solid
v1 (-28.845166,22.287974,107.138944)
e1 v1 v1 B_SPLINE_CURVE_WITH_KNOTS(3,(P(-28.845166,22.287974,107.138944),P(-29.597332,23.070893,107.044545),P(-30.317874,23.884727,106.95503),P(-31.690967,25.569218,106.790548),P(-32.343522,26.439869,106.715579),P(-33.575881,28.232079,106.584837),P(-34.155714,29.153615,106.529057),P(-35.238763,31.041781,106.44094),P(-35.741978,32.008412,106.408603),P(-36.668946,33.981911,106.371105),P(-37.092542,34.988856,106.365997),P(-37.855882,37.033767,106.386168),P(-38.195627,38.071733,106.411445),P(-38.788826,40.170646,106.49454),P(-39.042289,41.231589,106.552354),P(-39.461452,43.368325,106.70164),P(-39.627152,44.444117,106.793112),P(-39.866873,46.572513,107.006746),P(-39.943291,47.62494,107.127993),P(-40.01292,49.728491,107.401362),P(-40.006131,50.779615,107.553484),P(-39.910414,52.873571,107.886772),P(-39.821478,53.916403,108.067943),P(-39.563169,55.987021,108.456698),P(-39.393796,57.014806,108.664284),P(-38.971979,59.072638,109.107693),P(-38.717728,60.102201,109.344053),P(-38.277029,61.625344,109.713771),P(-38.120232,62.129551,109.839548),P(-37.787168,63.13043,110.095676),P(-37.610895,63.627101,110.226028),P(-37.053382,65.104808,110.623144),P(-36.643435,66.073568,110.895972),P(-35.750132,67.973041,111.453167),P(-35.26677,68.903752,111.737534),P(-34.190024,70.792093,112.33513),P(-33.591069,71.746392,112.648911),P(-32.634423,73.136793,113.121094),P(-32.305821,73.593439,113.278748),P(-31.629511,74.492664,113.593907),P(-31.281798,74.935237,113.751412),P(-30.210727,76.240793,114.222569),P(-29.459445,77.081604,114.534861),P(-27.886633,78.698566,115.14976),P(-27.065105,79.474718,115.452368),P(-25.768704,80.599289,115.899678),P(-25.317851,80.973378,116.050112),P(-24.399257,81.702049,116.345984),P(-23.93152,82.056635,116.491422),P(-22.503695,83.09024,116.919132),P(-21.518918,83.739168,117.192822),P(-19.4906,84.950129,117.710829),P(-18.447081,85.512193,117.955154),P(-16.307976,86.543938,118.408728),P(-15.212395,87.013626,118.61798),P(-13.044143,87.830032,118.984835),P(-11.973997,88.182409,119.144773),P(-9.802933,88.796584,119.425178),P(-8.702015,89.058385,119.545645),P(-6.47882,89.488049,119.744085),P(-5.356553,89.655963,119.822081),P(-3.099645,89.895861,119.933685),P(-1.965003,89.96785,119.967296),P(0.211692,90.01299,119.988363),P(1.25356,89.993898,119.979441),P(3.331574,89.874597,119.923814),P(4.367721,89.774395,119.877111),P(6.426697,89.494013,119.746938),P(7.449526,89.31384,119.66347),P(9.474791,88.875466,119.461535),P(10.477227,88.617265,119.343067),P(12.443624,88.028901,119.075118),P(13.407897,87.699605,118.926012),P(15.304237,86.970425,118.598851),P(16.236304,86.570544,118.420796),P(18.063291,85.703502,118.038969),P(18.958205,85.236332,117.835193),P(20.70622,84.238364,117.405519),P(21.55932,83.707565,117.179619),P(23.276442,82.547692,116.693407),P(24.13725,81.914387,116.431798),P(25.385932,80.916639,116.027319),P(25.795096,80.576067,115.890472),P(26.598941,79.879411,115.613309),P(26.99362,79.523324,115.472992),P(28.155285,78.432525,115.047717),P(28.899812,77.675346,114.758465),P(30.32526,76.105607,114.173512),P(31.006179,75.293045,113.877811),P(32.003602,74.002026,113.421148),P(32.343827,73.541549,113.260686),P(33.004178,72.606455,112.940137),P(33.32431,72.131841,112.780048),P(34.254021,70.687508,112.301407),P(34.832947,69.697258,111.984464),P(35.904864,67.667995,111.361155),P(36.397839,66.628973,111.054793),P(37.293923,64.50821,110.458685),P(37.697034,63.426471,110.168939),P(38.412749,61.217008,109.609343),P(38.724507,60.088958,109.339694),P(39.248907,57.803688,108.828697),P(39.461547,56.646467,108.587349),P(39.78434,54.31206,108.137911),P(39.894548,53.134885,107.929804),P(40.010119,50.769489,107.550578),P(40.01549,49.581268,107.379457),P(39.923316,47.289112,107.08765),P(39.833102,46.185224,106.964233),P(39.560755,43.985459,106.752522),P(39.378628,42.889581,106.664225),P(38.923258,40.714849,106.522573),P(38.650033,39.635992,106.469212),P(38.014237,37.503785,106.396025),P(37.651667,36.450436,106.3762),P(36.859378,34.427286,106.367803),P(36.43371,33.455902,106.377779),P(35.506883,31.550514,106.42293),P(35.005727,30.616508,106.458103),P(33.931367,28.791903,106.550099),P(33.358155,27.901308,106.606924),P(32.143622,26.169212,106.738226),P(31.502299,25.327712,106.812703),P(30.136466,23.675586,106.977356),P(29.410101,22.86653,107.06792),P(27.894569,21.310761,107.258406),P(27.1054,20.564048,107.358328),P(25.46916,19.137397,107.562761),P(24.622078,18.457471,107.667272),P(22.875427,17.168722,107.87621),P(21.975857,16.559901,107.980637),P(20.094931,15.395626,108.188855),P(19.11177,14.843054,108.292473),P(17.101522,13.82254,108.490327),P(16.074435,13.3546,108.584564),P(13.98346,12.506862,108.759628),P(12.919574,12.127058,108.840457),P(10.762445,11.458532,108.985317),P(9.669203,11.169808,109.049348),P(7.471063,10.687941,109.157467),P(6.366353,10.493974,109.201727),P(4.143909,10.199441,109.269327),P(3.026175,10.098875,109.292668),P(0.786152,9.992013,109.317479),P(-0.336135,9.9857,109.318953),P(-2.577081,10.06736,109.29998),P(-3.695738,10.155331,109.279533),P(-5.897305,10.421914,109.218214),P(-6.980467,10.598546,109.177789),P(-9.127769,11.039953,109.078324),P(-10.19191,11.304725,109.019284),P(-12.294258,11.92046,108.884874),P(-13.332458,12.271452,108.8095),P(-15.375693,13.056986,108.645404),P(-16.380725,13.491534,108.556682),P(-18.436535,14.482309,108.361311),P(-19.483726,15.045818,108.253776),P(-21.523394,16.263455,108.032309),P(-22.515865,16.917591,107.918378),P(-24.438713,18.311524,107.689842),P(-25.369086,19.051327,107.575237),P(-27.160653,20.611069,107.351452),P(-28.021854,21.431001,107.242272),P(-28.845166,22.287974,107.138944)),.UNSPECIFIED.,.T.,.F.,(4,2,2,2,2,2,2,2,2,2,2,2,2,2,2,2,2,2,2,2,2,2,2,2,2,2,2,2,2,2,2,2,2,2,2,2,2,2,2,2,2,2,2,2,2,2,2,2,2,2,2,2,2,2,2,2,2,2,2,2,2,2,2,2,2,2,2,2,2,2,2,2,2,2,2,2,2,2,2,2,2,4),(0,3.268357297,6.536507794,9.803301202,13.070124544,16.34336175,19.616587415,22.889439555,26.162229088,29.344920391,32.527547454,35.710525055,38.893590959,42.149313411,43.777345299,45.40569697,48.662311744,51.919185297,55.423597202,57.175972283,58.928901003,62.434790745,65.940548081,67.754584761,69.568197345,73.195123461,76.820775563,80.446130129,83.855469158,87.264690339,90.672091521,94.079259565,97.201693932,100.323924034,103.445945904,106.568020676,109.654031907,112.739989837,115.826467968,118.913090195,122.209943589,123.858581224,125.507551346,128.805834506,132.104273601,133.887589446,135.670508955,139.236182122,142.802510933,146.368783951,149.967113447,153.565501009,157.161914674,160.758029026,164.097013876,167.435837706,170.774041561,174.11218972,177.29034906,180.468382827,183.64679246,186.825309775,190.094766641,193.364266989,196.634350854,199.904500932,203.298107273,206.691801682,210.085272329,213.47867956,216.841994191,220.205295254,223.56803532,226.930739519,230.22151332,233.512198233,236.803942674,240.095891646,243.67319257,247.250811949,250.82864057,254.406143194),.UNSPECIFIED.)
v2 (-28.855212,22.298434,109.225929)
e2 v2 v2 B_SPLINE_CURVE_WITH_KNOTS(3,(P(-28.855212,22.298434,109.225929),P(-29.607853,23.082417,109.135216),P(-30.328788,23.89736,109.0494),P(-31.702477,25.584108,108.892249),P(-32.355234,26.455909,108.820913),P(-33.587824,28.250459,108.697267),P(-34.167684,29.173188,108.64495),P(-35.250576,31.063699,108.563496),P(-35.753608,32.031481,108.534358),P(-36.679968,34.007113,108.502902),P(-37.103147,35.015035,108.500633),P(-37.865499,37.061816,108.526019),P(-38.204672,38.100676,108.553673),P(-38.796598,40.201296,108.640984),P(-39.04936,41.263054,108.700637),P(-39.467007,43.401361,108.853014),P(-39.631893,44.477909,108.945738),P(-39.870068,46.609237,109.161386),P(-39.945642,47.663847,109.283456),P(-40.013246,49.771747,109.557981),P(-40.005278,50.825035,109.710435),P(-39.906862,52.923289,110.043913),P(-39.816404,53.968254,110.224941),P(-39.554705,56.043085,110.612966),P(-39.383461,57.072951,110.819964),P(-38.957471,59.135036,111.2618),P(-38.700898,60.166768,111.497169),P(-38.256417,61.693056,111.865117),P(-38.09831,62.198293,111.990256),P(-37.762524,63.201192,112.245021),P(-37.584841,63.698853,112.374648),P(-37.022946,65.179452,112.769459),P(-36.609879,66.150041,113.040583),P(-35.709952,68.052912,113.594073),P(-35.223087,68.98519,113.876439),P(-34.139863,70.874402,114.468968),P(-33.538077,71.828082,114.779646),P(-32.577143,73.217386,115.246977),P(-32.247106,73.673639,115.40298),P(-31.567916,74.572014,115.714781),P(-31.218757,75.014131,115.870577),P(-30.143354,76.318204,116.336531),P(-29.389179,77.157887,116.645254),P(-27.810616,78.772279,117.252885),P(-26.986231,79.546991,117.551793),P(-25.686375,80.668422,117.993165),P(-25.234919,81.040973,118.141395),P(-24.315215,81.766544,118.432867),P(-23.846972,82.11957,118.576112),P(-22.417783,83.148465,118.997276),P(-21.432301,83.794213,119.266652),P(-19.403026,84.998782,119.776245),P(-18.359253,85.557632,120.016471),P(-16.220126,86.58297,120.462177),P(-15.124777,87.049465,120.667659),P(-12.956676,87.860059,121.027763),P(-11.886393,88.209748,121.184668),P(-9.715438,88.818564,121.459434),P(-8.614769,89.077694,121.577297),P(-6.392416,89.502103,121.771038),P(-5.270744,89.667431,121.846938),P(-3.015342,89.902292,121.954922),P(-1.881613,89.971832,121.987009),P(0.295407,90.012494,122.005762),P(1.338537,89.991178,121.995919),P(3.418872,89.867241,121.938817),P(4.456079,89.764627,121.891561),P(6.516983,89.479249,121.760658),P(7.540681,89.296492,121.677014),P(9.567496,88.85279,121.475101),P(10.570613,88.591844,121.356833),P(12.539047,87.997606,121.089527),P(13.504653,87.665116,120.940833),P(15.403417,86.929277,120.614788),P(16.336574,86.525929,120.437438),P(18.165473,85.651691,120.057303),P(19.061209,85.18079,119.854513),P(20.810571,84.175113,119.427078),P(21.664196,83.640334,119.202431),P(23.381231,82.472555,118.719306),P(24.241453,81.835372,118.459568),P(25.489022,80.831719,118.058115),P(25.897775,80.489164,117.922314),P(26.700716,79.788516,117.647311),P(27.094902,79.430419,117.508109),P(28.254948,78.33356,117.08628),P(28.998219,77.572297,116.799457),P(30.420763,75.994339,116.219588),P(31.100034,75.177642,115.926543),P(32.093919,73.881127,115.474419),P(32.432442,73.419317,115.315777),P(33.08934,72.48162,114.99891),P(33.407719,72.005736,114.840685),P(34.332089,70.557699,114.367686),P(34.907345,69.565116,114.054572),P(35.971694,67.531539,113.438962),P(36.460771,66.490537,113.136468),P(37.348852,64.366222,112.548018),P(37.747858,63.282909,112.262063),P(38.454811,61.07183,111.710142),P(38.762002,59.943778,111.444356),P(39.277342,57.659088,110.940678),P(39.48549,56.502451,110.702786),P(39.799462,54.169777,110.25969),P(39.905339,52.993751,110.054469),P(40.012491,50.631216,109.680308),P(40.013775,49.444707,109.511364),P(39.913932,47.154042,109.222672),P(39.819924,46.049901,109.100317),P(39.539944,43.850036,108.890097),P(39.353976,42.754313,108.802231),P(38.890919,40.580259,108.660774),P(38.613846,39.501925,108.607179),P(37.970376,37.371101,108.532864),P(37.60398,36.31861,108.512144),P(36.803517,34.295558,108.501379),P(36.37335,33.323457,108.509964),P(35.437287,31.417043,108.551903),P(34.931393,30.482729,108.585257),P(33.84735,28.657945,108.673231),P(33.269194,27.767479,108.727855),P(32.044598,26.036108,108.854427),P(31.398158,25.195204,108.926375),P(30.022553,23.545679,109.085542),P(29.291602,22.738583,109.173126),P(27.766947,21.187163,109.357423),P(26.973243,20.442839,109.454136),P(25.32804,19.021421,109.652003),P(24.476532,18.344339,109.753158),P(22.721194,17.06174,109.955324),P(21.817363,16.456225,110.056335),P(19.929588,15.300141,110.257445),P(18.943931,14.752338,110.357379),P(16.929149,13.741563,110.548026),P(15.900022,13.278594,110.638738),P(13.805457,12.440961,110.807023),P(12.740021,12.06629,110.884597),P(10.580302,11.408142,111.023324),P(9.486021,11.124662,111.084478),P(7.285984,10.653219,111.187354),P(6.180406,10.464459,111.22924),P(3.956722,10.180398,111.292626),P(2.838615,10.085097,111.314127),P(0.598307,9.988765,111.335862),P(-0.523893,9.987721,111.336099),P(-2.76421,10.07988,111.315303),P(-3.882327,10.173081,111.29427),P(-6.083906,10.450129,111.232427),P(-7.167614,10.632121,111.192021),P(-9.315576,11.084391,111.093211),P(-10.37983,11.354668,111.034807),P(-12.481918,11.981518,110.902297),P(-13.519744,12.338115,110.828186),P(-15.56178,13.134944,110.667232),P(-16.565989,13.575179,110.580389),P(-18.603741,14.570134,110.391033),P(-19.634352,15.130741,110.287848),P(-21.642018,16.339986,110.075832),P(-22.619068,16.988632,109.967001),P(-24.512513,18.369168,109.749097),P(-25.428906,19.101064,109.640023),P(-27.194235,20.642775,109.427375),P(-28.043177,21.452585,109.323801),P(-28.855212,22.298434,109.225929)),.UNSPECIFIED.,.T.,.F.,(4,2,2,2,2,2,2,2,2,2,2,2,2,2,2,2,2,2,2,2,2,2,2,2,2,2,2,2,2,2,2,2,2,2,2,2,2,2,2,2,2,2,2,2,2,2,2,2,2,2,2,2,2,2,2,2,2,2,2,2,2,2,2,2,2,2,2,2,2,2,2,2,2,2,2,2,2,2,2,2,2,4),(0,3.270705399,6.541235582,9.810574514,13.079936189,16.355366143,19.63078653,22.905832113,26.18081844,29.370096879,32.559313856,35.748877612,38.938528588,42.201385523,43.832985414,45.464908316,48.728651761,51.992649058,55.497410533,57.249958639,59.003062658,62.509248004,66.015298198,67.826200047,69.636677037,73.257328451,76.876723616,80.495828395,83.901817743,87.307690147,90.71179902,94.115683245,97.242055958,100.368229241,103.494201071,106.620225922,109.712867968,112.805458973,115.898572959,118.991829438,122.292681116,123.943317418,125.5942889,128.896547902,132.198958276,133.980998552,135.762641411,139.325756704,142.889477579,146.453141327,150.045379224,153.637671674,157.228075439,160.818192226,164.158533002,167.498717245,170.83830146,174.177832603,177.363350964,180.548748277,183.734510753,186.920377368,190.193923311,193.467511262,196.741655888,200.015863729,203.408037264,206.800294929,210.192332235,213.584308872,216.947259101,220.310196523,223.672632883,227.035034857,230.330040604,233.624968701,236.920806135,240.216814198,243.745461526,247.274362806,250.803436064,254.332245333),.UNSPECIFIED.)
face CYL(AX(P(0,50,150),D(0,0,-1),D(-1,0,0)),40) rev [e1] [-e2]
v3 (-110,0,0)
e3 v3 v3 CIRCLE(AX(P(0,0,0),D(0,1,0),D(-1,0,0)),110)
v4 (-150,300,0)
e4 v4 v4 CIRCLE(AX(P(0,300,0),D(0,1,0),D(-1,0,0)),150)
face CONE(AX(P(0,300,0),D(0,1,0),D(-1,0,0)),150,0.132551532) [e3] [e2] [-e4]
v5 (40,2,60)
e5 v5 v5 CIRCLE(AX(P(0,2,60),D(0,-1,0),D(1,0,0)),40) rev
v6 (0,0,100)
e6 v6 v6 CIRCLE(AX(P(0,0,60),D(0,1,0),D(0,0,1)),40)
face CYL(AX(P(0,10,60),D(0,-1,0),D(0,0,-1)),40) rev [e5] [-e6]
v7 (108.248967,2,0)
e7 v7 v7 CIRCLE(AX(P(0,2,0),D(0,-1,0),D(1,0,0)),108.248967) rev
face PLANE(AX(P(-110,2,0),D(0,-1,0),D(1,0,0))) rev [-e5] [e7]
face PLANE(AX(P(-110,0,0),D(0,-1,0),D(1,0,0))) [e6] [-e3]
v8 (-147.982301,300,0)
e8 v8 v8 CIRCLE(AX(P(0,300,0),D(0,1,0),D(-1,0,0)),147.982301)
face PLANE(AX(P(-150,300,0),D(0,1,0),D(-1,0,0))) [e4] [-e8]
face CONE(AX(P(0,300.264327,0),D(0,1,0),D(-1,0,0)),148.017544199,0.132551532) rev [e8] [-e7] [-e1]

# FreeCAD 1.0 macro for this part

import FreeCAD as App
import Part
import Sketcher
from FreeCAD import Vector
Q = App.Units.Quantity


def faces_at(feature, points):
    """Names of the faces that lie closest to the given points."""
    faces = feature.Shape.Faces
    near = lambda p: min(range(len(faces)), key=lambda i: faces[i].distToShape(Part.Vertex(*p))[0])
    return sorted({f"Face{near(p) + 1}" for p in points})

doc = App.newDocument("Part")
body = doc.addObject("PartDesign::Body", "Body")

sketch1 = body.newObject("Sketcher::SketchObject", "Sketch")
sketch1.AttachmentSupport = (doc.getObject("XY_Plane"), [""])
sketch1.MapMode = "FlatFace"
sketch1.addGeometry([
    Part.LineSegment(Vector(-150, 300, 0), Vector(-110, 0, 0)),
    Part.LineSegment(Vector(-110, 0, 0), Vector(0, 0, 0)),
    Part.LineSegment(Vector(0, 0, 0), Vector(0, 300, 0)),
    Part.LineSegment(Vector(0, 300, 0), Vector(-150, 300, 0)),
], False)
sketch1.addConstraint([
    Sketcher.Constraint("Coincident", 0, 2, 1, 1),
    Sketcher.Constraint("Coincident", 1, 2, 2, 1),
    Sketcher.Constraint("Coincident", 2, 2, 3, 1),
    Sketcher.Constraint("Coincident", 3, 2, 0, 1),
    Sketcher.Constraint("Horizontal", 1),
    Sketcher.Constraint("Vertical", 2),
    Sketcher.Constraint("Horizontal", 3),
    Sketcher.Constraint("Coincident", 1, 2, -1, 1),
    Sketcher.Constraint("DistanceX", 1, 1, 1, 2, Q("110 mm")),
    Sketcher.Constraint("DistanceX", 3, 2, 3, 1, Q("150 mm")),
    Sketcher.Constraint("DistanceY", 2, 1, 2, 2, Q("300 mm")),
])
revolution = body.newObject("PartDesign::Revolution", "Revolution")
revolution.Profile = sketch1
revolution.ReferenceAxis = (sketch1, ["V_Axis"])
revolution.Angle = 360
doc.recompute()

thickness = body.newObject("PartDesign::Thickness", "Thickness")
thickness.Base = (revolution, faces_at(revolution, [(0, 300, 0)]))
thickness.Value = 2
thickness.Reversed = True
thickness.Join = "Intersection"

sketch2 = body.newObject("Sketcher::SketchObject", "Sketch001")
sketch2.AttachmentSupport = (doc.getObject("XY_Plane"), [""])
sketch2.MapMode = "FlatFace"
sketch2.addGeometry(Part.Circle(Vector(0, 50, 0), Vector(0, 0, 1), 40), False)
sketch2.addConstraint([
    Sketcher.Constraint("PointOnObject", 0, 3, -2),
    Sketcher.Constraint("Diameter", 0, Q("80 mm")),
    Sketcher.Constraint("DistanceY", -1, 1, 0, 3, Q("50 mm")),
])
pocket1 = body.newObject("PartDesign::Pocket", "Pocket")
pocket1.Profile = sketch2
pocket1.Type = "ThroughAll"
pocket1.Reversed = True

sketch3 = body.newObject("Sketcher::SketchObject", "Sketch002")
sketch3.AttachmentSupport = (doc.getObject("XZ_Plane"), [""])
sketch3.MapMode = "FlatFace"
sketch3.addGeometry(Part.Circle(Vector(0, 60, 0), Vector(0, 0, 1), 40), False)
sketch3.addConstraint([
    Sketcher.Constraint("PointOnObject", 0, 3, -2),
    Sketcher.Constraint("Diameter", 0, Q("80 mm")),
    Sketcher.Constraint("DistanceY", -1, 1, 0, 3, Q("60 mm")),
])
pocket2 = body.newObject("PartDesign::Pocket", "Pocket001")
pocket2.Profile = sketch3
pocket2.Length = 10

doc.recompute()
